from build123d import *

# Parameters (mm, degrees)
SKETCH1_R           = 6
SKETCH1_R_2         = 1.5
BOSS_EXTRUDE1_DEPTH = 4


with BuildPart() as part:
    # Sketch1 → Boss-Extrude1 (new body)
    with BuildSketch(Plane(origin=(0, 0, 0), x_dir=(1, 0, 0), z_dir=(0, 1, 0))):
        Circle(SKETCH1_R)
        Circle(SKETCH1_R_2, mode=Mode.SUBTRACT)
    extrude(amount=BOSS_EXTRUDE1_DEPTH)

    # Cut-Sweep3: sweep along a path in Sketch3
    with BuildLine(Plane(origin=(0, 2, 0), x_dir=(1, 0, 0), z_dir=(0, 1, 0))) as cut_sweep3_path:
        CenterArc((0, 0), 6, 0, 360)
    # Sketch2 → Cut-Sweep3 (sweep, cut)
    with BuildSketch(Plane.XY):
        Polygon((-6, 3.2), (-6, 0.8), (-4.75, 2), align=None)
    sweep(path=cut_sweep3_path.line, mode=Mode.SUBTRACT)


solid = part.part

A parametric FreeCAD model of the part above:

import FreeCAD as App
import Part
import Sketcher

V = App.Vector
Q = App.Units.Quantity


def add_polygon(sketch, points):
    """Adds a closed chain of lines whose ends are joined by coincident constraints."""
    first, n = sketch.GeometryCount, len(points)
    for a, b in zip(points, points[1:] + points[:1]):
        sketch.addGeometry(Part.LineSegment(App.Vector(*a, 0), App.Vector(*b, 0)), False)
    for i in range(n):
        sketch.addConstraint(Sketcher.Constraint("Coincident", first + i, 2, first + (i + 1) % n, 1))

doc = App.newDocument("Part")
body = doc.addObject("PartDesign::Body", "Body")

sketch1 = body.newObject("Sketcher::SketchObject", "Sketch")
sketch1.AttachmentSupport = (doc.getObject("XZ_Plane"), [""])
sketch1.MapMode = "FlatFace"
sketch1.addGeometry([
    Part.Circle(V(0, 0, 0), V(0, 0, 1), 6),
    Part.Circle(V(0, 0, 0), V(0, 0, 1), 1.5),
], False)
sketch1.addConstraint([
    Sketcher.Constraint("Coincident", 0, 3, -1, 1),
    Sketcher.Constraint("Coincident", 1, 3, -1, 1),
    Sketcher.Constraint("Diameter", 0, Q("12 mm")),
    Sketcher.Constraint("Diameter", 1, Q("3 mm")),
])
pad1 = body.newObject("PartDesign::Pad", "Pad")
pad1.Profile = sketch1
pad1.Length = 4
pad1.Reversed = True

sketch2 = body.newObject("Sketcher::SketchObject", "Sketch001")
sketch2.AttachmentSupport = (doc.getObject("XY_Plane"), [""])
sketch2.MapMode = "FlatFace"
add_polygon(sketch2, [(-6, 3.2), (-6, 0.8), (-4.75, 2)])
sketch2.addConstraint([
    Sketcher.Constraint("Vertical", 0),
    Sketcher.Constraint("Equal", 1, 2),
    Sketcher.Constraint("DistanceY", 0, 2, 0, 1, Q("2.4 mm")),
    Sketcher.Constraint("DistanceX", 0, 2, -1, 1, Q("6 mm")),
    Sketcher.Constraint("DistanceY", -1, 1, 1, 2, Q("2 mm")),
    Sketcher.Constraint("DistanceX", 1, 2, -1, 1, Q("4.75 mm")),
])

sketch3 = body.newObject("Sketcher::SketchObject", "Sketch002")
sketch3.AttachmentSupport = (doc.getObject("XZ_Plane"), [""])
sketch3.MapMode = "FlatFace"
sketch3.AttachmentOffset = App.Placement(V(0, 0, -2), App.Rotation())
sketch3.addGeometry(Part.Circle(V(0, 0, 0), V(0, 0, 1), 6), False)
sketch3.addConstraint([
    Sketcher.Constraint("Coincident", 0, 3, -1, 1),
    Sketcher.Constraint("Diameter", 0, Q("12 mm")),
])
doc.recompute()

subtractivepipe = body.newObject("PartDesign::SubtractivePipe", "SubtractivePipe")
subtractivepipe.Profile = sketch2
subtractivepipe.Spine = (sketch3, ["Edge1"])

doc.recompute()
